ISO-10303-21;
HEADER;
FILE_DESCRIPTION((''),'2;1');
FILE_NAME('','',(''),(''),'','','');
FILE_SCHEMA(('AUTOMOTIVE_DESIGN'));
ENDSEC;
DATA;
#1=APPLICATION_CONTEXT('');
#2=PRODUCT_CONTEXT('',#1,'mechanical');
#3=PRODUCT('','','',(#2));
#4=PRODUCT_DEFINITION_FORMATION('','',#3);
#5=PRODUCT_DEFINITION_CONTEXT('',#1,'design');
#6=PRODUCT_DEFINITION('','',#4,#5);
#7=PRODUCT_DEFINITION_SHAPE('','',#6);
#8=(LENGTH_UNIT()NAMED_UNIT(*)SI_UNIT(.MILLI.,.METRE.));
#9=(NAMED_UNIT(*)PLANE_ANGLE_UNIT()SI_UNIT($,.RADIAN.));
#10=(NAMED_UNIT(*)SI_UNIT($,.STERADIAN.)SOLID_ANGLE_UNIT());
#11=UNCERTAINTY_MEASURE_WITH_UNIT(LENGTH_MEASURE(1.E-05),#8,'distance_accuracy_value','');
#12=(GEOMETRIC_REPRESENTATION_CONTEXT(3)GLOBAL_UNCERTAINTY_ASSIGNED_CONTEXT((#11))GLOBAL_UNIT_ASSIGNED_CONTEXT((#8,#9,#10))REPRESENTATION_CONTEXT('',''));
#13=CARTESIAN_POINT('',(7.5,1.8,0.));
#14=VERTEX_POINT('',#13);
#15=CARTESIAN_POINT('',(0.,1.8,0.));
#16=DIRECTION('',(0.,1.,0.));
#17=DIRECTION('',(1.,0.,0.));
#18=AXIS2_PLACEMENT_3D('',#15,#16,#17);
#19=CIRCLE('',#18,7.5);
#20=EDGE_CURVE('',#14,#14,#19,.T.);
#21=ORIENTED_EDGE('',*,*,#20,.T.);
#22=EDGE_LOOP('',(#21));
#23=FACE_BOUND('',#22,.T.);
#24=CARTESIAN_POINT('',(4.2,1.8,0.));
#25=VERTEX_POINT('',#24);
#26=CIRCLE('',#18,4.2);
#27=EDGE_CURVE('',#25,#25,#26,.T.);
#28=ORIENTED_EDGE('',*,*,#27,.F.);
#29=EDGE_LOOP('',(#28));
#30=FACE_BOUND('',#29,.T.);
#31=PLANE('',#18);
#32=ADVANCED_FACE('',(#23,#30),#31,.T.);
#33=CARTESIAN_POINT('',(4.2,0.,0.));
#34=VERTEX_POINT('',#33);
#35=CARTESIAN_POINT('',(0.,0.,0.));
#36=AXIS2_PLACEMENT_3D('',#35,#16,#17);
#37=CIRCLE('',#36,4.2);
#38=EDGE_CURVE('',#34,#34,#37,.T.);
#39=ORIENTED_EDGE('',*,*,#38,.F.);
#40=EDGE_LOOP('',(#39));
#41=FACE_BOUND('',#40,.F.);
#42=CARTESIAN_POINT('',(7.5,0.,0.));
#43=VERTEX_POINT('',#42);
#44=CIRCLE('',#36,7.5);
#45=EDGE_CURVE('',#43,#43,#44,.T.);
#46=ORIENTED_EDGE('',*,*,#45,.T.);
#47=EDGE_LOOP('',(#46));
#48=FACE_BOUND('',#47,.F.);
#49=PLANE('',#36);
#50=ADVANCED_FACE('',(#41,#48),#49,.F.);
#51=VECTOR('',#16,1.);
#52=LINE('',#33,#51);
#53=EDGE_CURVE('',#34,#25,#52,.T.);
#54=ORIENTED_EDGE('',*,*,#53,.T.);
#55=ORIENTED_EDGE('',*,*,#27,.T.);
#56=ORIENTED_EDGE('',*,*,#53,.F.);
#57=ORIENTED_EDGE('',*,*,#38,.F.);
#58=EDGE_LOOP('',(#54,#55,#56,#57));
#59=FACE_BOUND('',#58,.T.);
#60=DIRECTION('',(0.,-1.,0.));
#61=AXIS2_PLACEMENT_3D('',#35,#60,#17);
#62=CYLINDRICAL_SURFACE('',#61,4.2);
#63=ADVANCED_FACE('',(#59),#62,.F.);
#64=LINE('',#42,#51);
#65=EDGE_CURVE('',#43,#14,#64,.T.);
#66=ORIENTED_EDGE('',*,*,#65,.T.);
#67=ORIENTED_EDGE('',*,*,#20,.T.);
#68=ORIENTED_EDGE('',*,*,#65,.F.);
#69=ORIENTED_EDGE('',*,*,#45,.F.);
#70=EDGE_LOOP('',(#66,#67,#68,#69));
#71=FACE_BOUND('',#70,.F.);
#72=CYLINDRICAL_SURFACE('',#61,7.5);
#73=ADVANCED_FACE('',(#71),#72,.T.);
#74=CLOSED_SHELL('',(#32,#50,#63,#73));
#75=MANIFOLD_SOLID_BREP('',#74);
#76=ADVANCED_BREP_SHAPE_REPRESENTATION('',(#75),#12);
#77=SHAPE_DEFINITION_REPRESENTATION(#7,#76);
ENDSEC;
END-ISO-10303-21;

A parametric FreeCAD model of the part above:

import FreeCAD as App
import Part
import Sketcher
from FreeCAD import Vector

doc = App.newDocument("Part")
params = doc.addObject("Spreadsheet::Sheet", "Params")
for row, (alias, value) in enumerate([
    ("sketch1_diameter", "15 mm"),
    ("sketch1_diameter2", "8.4 mm"),
    ("pad1_length", "1.8 mm"),
], start=1):
    params.set(f"A{row}", alias)
    params.set(f"B{row}", "=" + value)
    params.setAlias(f"B{row}", alias)

body = doc.addObject("PartDesign::Body", "Body")

sketch1 = doc.addObject("Sketcher::SketchObject", "Sketch")
body.addObject(sketch1)
sketch1.AttachmentSupport = (doc.XZ_Plane, [""])
sketch1.MapMode = "FlatFace"
sketch1.addGeometry([
    Part.Circle(Vector(0, 0, 0), Vector(0, 0, 1), 7.5),
    Part.Circle(Vector(0, 0, 0), Vector(0, 0, 1), 4.2),
], False)
sketch1.addConstraint([
    Sketcher.Constraint("Coincident", 0, 3, -1, 1),
    Sketcher.Constraint("Coincident", 1, 3, -1, 1),
    Sketcher.Constraint("Diameter", 0, 15.0),
    Sketcher.Constraint("Diameter", 1, 8.4),
])
sketch1.setExpression("Constraints[2]", "Params.sketch1_diameter")
sketch1.setExpression("Constraints[3]", "Params.sketch1_diameter2")
pad1 = doc.addObject("PartDesign::Pad", "Pad")
body.addObject(pad1)
pad1.Profile = sketch1
pad1.setExpression("Length", "Params.pad1_length")
pad1.Reversed = True

doc.recompute()
